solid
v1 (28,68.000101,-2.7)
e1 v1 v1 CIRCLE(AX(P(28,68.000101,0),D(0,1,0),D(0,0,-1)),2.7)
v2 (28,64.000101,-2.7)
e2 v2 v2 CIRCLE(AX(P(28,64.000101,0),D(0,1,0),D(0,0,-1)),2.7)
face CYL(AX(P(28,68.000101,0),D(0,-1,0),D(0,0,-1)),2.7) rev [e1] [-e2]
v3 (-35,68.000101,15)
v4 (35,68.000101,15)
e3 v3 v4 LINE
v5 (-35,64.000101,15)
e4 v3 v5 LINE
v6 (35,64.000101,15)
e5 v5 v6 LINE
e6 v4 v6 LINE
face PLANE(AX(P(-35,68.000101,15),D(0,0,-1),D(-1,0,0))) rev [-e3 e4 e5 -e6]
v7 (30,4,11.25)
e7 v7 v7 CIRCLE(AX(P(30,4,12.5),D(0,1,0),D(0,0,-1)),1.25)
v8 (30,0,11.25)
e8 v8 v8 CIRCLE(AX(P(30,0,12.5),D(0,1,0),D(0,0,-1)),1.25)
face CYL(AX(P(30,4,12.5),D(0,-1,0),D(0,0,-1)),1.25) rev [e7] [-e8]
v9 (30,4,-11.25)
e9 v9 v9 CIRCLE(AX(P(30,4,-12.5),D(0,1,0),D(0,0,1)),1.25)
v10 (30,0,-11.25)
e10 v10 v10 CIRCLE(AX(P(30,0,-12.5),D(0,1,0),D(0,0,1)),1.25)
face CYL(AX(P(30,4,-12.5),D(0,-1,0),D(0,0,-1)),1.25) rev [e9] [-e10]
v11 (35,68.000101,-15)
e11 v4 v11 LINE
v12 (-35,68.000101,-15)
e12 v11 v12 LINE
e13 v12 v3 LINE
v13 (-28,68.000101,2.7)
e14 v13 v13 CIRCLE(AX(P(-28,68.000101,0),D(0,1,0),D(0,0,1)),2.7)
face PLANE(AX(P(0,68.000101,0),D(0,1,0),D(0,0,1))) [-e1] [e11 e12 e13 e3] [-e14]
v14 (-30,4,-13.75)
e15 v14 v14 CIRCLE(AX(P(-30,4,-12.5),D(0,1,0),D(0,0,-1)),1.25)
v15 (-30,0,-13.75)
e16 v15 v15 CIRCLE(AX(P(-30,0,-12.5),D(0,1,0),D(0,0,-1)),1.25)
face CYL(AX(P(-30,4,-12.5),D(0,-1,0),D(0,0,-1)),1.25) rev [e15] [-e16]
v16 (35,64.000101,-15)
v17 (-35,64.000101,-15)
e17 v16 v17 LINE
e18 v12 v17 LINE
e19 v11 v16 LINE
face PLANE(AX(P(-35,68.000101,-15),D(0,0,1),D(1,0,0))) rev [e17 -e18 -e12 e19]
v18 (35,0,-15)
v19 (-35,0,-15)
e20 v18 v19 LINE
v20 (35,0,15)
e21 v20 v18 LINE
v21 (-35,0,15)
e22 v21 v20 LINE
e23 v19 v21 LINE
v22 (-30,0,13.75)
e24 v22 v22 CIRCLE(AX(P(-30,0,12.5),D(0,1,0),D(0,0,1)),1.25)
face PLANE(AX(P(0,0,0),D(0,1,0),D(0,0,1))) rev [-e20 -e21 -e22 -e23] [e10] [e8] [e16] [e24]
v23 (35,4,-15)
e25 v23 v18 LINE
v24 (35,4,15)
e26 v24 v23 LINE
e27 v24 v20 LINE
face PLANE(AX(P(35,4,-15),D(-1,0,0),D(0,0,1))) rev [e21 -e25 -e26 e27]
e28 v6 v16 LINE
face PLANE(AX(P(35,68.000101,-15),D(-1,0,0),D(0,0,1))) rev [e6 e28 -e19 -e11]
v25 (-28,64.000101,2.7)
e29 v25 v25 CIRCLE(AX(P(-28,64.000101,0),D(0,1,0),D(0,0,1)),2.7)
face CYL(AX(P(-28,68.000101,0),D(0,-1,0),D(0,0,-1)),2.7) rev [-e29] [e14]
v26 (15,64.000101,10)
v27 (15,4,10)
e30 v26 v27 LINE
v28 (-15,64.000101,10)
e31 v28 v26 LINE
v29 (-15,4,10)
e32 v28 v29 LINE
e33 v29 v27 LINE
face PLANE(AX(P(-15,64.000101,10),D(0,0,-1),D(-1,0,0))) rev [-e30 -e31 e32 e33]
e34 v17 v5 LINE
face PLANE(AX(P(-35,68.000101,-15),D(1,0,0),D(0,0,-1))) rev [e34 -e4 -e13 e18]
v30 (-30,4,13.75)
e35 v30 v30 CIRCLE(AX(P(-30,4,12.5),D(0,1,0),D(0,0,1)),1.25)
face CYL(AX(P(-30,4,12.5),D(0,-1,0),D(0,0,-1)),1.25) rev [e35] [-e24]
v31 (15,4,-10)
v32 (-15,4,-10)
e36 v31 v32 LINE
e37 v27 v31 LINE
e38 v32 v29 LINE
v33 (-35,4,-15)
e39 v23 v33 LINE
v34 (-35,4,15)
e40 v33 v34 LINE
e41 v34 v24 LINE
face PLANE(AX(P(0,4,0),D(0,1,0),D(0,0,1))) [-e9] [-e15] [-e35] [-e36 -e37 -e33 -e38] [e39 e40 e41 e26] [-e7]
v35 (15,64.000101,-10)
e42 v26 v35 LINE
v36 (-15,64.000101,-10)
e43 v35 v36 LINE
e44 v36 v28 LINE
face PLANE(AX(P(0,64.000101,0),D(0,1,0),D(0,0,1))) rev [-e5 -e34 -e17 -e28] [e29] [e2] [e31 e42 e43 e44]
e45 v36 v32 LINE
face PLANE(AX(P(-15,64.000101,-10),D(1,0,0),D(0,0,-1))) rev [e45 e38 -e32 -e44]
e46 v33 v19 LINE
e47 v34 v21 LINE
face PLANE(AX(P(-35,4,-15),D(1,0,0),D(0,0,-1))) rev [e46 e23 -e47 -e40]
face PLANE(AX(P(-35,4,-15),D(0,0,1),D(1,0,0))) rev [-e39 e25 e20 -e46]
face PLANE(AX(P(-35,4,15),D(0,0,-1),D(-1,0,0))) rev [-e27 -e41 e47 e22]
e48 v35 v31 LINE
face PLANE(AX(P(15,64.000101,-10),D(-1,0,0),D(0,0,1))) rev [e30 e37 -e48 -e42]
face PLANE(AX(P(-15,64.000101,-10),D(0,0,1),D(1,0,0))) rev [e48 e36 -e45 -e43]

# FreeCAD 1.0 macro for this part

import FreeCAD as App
import Part
import Sketcher
from FreeCAD import Vector


def add_polygon(sketch, points):
    """Adds a closed chain of lines whose ends are joined by coincident constraints."""
    first, n = sketch.GeometryCount, len(points)
    for a, b in zip(points, points[1:] + points[:1]):
        sketch.addGeometry(Part.LineSegment(App.Vector(*a, 0), App.Vector(*b, 0)), False)
    for i in range(n):
        sketch.addConstraint(Sketcher.Constraint("Coincident", first + i, 2, first + (i + 1) % n, 1))

doc = App.newDocument("Part")
params = doc.addObject("Spreadsheet::Sheet", "Params")
for row, (alias, value) in enumerate([
    ("sketch1_diameter", "2.5 mm"),
    ("sketch1_width", "70 mm"),
    ("sketch1_height", "30 mm"),
    ("pad1_length", "4 mm"),
    ("sketch2_width", "30 mm"),
    ("sketch2_height", "20 mm"),
    ("pad2_length", "60.000101 mm"),
    ("sketch3_diameter", "5.4 mm"),
    ("sketch3_width", "70 mm"),
    ("sketch3_height", "30 mm"),
    ("pad3_length", "4 mm"),
], start=1):
    params.set(f"A{row}", alias)
    params.set(f"B{row}", "=" + value)
    params.setAlias(f"B{row}", alias)

body = doc.addObject("PartDesign::Body", "Body")

sketch1 = body.newObject("Sketcher::SketchObject", "Sketch")
sketch1.AttachmentSupport = (doc.getObject("XZ_Plane"), [""])
sketch1.MapMode = "FlatFace"
add_polygon(sketch1, [(-35, -15), (-35, 15), (35, 15), (35, -15)])
sketch1.addGeometry(Part.Circle(Vector(-30, 12.5, 0), Vector(0, 0, 1), 1.2), False)
sketch1.addGeometry(Part.Circle(Vector(30, 12.5, 0), Vector(0, 0, 1), 1.2), False)
sketch1.addGeometry(Part.Circle(Vector(-30, -12.5, 0), Vector(0, 0, 1), 1.2), False)
sketch1.addGeometry(Part.Circle(Vector(30, -12.5, 0), Vector(0, 0, 1), 1.2), False)
sketch1.addConstraint(Sketcher.Constraint("Vertical", 0))
sketch1.addConstraint(Sketcher.Constraint("Horizontal", 1))
sketch1.addConstraint(Sketcher.Constraint("Vertical", 2))
sketch1.addConstraint(Sketcher.Constraint("Horizontal", 3))
sketch1.addConstraint(Sketcher.Constraint("Equal", 4, 5))
sketch1.addConstraint(Sketcher.Constraint("Equal", 5, 6))
sketch1.addConstraint(Sketcher.Constraint("Equal", 6, 7))
sketch1.addConstraint(Sketcher.Constraint("Symmetric", 5, 3, 6, 3, -1, 1))
sketch1.addConstraint(Sketcher.Constraint("Symmetric", 4, 3, 7, 3, -1, 1))
sketch1.addConstraint(Sketcher.Constraint("Symmetric", 0, 2, 2, 2, -1, 1))
sketch1.addConstraint(Sketcher.Constraint("Symmetric", 4, 3, 5, 3, -2))
sketch1.addConstraint(Sketcher.Constraint("Diameter", 4, 2.5))
sketch1.addConstraint(Sketcher.Constraint("DistanceX", 1, 1, 1, 2, 70.0))
sketch1.addConstraint(Sketcher.Constraint("DistanceY", 0, 1, 0, 2, 30.0))
sketch1.addConstraint(Sketcher.Constraint("DistanceX", 4, 3, -1, 1, 30.0))
sketch1.addConstraint(Sketcher.Constraint("DistanceY", 6, 3, 4, 3, 25.0))
sketch1.setExpression("Constraints[15]", "Params.sketch1_diameter")
sketch1.setExpression("Constraints[16]", "Params.sketch1_width")
sketch1.setExpression("Constraints[17]", "Params.sketch1_height")
pad1 = body.newObject("PartDesign::Pad", "Pad")
pad1.Profile = sketch1
pad1.setExpression("Length", "Params.pad1_length")
pad1.Reversed = True

sketch2 = body.newObject("Sketcher::SketchObject", "Sketch001")
sketch2.AttachmentSupport = (doc.getObject("XZ_Plane"), [""])
sketch2.MapMode = "FlatFace"
sketch2.AttachmentOffset = App.Placement(Vector(0, 0, -4), App.Rotation())
add_polygon(sketch2, [(-15, -10), (-15, 10), (15, 10), (15, -10)])
sketch2.addConstraint(Sketcher.Constraint("Vertical", 0))
sketch2.addConstraint(Sketcher.Constraint("Horizontal", 1))
sketch2.addConstraint(Sketcher.Constraint("Vertical", 2))
sketch2.addConstraint(Sketcher.Constraint("Horizontal", 3))
sketch2.addConstraint(Sketcher.Constraint("Symmetric", 0, 2, 2, 2, -1, 1))
sketch2.addConstraint(Sketcher.Constraint("DistanceX", 1, 1, 1, 2, 30.0))
sketch2.addConstraint(Sketcher.Constraint("DistanceY", 0, 1, 0, 2, 20.0))
sketch2.setExpression("Constraints[9]", "Params.sketch2_width")
sketch2.setExpression("Constraints[10]", "Params.sketch2_height")
pad2 = body.newObject("PartDesign::Pad", "Pad001")
pad2.Profile = sketch2
pad2.setExpression("Length", "Params.pad2_length")
pad2.Reversed = True

sketch3 = body.newObject("Sketcher::SketchObject", "Sketch002")
sketch3.AttachmentSupport = (doc.getObject("XZ_Plane"), [""])
sketch3.MapMode = "FlatFace"
sketch3.AttachmentOffset = App.Placement(Vector(0, 0, -64.000101), App.Rotation())
add_polygon(sketch3, [(-35, -15), (-35, 15), (35, 15), (35, -15)])
sketch3.addGeometry(Part.Circle(Vector(-28, 0, 0), Vector(0, 0, 1), 2.7), False)
sketch3.addGeometry(Part.Circle(Vector(28, 0, 0), Vector(0, 0, 1), 2.7), False)
sketch3.addConstraint(Sketcher.Constraint("Vertical", 0))
sketch3.addConstraint(Sketcher.Constraint("Horizontal", 1))
sketch3.addConstraint(Sketcher.Constraint("Vertical", 2))
sketch3.addConstraint(Sketcher.Constraint("Horizontal", 3))
sketch3.addConstraint(Sketcher.Constraint("Equal", 4, 5))
sketch3.addConstraint(Sketcher.Constraint("Symmetric", 4, 3, 5, 3, -1, 1))
sketch3.addConstraint(Sketcher.Constraint("Symmetric", 0, 2, 2, 2, -1, 1))
sketch3.addConstraint(Sketcher.Constraint("PointOnObject", 4, 3, -1))
sketch3.addConstraint(Sketcher.Constraint("Diameter", 4, 5.4))
sketch3.addConstraint(Sketcher.Constraint("DistanceX", 1, 1, 1, 2, 70.0))
sketch3.addConstraint(Sketcher.Constraint("DistanceY", 0, 1, 0, 2, 30.0))
sketch3.addConstraint(Sketcher.Constraint("DistanceX", 4, 3, -1, 1, 28.0))
sketch3.setExpression("Constraints[12]", "Params.sketch3_diameter")
sketch3.setExpression("Constraints[13]", "Params.sketch3_width")
sketch3.setExpression("Constraints[14]", "Params.sketch3_height")
pad3 = body.newObject("PartDesign::Pad", "Pad002")
pad3.Profile = sketch3
pad3.setExpression("Length", "Params.pad3_length")
pad3.Reversed = True

doc.recompute()
